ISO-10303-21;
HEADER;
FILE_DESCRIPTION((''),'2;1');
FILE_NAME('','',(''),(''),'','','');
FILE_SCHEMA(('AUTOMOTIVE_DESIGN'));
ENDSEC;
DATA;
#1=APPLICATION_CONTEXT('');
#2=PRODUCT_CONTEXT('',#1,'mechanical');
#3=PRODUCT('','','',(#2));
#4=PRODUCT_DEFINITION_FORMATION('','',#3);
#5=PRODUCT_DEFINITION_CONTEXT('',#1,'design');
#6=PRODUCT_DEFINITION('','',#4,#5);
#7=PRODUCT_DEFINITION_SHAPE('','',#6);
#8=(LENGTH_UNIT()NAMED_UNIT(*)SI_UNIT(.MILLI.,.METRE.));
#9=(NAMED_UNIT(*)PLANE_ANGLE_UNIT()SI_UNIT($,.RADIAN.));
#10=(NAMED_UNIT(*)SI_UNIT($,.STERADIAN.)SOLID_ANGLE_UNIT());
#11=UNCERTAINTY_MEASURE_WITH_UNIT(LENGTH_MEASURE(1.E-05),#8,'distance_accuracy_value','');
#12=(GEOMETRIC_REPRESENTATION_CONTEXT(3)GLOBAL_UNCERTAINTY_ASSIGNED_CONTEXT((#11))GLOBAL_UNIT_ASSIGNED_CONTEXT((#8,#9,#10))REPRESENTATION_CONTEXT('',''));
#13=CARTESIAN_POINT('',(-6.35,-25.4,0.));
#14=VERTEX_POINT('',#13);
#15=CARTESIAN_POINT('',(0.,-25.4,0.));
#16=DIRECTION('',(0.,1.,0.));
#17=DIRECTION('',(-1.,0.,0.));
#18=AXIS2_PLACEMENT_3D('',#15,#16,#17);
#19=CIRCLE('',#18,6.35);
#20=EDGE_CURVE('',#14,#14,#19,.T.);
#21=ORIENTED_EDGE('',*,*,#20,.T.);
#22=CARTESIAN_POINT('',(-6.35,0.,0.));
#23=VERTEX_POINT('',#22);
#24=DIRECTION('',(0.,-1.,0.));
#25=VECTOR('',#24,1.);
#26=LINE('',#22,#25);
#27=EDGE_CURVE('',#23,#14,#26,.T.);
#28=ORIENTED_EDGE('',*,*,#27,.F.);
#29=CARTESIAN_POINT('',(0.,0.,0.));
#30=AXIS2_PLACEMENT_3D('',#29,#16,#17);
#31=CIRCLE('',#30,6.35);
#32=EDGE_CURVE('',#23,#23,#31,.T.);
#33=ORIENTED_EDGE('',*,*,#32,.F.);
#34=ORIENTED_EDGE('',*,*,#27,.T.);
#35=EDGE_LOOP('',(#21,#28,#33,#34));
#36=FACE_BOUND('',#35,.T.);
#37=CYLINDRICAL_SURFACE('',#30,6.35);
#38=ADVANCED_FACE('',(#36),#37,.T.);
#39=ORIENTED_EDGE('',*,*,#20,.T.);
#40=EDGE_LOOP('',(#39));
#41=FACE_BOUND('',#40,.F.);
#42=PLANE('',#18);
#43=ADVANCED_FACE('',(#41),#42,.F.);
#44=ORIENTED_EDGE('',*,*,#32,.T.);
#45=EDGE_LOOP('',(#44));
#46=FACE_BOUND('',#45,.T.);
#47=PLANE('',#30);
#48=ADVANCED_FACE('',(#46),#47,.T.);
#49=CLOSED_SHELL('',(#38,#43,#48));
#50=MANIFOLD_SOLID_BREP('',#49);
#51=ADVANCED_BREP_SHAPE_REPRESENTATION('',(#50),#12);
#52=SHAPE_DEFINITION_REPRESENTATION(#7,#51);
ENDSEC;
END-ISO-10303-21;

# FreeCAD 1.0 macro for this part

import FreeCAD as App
import Part
import Sketcher
from FreeCAD import Vector
Q = App.Units.Quantity

doc = App.newDocument("Part")
params = doc.addObject("Spreadsheet::Sheet", "Params")
for row, (alias, value) in enumerate([
    ("sketch1_diameter", "0.5 in"),
    ("pad1_length", "1 in"),
], start=1):
    params.set(f"A{row}", alias)
    params.set(f"B{row}", "=" + value)
    params.setAlias(f"B{row}", alias)

body = doc.addObject("PartDesign::Body", "Body")

# Sketch on XZ plane
sketch1 = body.newObject("Sketcher::SketchObject", "Sketch")
sketch1.AttachmentSupport = (doc.getObject("XZ_Plane"), [""])
sketch1.MapMode = "FlatFace"
sketch1.addGeometry(Part.Circle(Vector(0, 0, 0), Vector(0, 0, 1), 6), False)
sketch1.addConstraint([
    Sketcher.Constraint("Coincident", 0, 3, -1, 1),
    Sketcher.Constraint("Diameter", 0, Q("0.5 in")),
])
sketch1.setExpression("Constraints[1]", "Params.sketch1_diameter")
pad1 = body.newObject("PartDesign::Pad", "Pad")
pad1.Profile = sketch1
pad1.setExpression("Length", "Params.pad1_length")

doc.recompute()
